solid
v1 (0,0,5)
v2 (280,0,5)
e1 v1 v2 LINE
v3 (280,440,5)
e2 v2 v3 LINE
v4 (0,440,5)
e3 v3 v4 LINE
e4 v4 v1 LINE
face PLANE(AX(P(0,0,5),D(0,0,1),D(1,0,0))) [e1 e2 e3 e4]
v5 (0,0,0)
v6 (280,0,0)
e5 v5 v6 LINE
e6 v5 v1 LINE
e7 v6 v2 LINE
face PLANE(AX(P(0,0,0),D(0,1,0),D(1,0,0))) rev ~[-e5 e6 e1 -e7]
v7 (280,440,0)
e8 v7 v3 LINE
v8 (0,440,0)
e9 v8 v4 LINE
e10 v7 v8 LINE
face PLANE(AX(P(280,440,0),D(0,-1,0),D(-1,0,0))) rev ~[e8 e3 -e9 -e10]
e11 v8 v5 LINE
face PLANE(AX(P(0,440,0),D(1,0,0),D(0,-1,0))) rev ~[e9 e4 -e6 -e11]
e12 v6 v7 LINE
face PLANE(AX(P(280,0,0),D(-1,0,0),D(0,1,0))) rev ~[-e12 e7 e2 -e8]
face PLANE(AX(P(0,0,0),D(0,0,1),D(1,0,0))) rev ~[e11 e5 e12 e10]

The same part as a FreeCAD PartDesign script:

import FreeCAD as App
import Part
import Sketcher

doc = App.newDocument("Part")
body = doc.addObject("PartDesign::Body", "Body")

# Sketch on XY plane
sketch1 = body.newObject("Sketcher::SketchObject", "Sketch")
sketch1.AttachmentSupport = (doc.getObject("XY_Plane"), [""])
sketch1.MapMode = "FlatFace"
sketch1.addGeometry(Part.LineSegment(App.Vector(0, 440, 0), App.Vector(0, 0, 0)), False)
sketch1.addGeometry(Part.LineSegment(App.Vector(0, 0, 0), App.Vector(280, 0, 0)), False)
sketch1.addGeometry(Part.LineSegment(App.Vector(280, 0, 0), App.Vector(280, 440, 0)), False)
sketch1.addGeometry(Part.LineSegment(App.Vector(280, 440, 0), App.Vector(0, 440, 0)), False)
sketch1.addConstraint(Sketcher.Constraint("Coincident", 0, 2, 1, 1))
sketch1.addConstraint(Sketcher.Constraint("Coincident", 1, 2, 2, 1))
sketch1.addConstraint(Sketcher.Constraint("Coincident", 2, 2, 3, 1))
sketch1.addConstraint(Sketcher.Constraint("Coincident", 3, 2, 0, 1))
sketch1.addConstraint(Sketcher.Constraint("Vertical", 0))
sketch1.addConstraint(Sketcher.Constraint("Horizontal", 1))
sketch1.addConstraint(Sketcher.Constraint("Vertical", 2))
sketch1.addConstraint(Sketcher.Constraint("Horizontal", 3))
sketch1.addConstraint(Sketcher.Constraint("Coincident", 0, 2, -1, 1))
sketch1.addConstraint(Sketcher.Constraint("DistanceX", 1, 1, 1, 2, 280.0))
sketch1.addConstraint(Sketcher.Constraint("DistanceY", 0, 2, 0, 1, 440.0))
pad1 = body.newObject("PartDesign::Pad", "Pad")
pad1.Profile = sketch1
pad1.Length = 5

doc.recompute()
